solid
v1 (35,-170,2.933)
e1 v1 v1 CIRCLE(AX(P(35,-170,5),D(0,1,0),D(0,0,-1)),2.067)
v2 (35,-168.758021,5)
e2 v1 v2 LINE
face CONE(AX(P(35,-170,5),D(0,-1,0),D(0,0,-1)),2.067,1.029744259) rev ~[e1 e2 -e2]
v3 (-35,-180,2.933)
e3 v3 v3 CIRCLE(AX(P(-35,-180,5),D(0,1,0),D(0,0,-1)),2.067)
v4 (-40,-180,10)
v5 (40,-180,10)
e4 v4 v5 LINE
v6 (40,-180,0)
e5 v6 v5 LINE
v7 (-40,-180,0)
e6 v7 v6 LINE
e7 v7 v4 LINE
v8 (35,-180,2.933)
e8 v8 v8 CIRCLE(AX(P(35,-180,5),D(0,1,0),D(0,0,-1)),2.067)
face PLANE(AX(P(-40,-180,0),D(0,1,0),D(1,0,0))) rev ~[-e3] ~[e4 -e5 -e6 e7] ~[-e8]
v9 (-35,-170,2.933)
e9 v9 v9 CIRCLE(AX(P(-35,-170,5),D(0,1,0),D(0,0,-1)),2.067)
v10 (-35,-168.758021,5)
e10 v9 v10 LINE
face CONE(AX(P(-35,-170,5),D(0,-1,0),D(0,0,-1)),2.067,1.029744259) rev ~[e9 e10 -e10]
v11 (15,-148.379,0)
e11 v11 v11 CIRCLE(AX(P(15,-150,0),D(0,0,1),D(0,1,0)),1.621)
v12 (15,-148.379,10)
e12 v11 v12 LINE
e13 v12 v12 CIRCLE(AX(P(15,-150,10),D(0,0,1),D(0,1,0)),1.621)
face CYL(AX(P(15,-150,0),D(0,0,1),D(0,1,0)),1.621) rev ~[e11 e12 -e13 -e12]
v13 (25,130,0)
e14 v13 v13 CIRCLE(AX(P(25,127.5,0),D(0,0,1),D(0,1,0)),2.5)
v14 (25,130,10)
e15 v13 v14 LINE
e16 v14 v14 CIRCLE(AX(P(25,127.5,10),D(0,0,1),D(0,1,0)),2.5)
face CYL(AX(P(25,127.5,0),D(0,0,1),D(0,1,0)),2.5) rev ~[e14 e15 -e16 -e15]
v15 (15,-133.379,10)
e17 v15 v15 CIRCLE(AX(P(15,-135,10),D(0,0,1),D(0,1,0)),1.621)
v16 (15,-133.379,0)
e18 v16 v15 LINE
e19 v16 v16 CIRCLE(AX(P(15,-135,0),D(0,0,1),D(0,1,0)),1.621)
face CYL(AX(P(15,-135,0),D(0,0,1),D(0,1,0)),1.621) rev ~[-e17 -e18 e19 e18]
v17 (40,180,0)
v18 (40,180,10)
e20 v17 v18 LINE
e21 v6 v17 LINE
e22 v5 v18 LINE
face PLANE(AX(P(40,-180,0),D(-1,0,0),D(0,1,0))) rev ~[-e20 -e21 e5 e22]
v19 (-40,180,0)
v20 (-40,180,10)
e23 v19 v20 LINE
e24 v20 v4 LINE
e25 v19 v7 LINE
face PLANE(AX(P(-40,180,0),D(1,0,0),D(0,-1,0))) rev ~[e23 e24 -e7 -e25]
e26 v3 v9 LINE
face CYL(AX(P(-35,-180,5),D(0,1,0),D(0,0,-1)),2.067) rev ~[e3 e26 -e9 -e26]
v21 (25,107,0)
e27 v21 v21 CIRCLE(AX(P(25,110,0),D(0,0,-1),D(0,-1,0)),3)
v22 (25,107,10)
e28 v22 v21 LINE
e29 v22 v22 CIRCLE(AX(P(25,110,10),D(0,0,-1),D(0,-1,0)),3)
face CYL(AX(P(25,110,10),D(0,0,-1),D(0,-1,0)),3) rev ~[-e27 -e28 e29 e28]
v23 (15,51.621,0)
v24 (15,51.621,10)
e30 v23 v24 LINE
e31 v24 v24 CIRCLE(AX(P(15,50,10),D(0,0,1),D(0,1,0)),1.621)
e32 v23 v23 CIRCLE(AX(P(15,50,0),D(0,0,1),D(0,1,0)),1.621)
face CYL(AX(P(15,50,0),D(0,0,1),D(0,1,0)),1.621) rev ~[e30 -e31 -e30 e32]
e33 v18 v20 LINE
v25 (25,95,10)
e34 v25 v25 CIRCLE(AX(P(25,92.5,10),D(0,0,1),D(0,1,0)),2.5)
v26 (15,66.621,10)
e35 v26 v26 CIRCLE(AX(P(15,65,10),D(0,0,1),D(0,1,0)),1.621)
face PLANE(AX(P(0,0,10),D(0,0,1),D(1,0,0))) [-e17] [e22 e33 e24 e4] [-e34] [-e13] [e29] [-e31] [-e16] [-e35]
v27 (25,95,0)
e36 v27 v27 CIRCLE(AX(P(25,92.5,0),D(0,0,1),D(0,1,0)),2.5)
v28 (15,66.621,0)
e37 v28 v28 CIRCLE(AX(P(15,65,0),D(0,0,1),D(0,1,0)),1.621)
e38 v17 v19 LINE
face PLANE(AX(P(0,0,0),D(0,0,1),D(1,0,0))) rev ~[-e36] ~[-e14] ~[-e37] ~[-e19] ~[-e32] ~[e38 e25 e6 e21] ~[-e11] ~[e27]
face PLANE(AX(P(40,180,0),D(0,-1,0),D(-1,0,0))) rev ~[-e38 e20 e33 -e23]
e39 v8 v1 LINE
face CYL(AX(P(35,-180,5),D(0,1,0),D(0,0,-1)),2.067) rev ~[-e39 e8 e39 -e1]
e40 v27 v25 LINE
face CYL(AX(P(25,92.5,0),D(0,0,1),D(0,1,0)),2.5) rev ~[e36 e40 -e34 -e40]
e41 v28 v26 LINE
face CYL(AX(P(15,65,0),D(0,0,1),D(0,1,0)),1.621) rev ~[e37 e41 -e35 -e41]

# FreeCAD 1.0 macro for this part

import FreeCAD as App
import Part
import Sketcher

V = App.Vector
Q = App.Units.Quantity

doc = App.newDocument("Part")
body = doc.addObject("PartDesign::Body", "Body")

# Sketch on XY plane
sketch1 = doc.addObject("Sketcher::SketchObject", "Sketch")
body.addObject(sketch1)
sketch1.AttachmentSupport = (doc.XY_Plane, [""])
sketch1.MapMode = "FlatFace"
sketch1.addGeometry([
    Part.LineSegment(V(40, -180, 0), V(40, 180, 0)),
    Part.LineSegment(V(40, 180, 0), V(-40, 180, 0)),
    Part.LineSegment(V(-40, 180, 0), V(-40, -180, 0)),
    Part.LineSegment(V(-40, -180, 0), V(40, -180, 0)),
], False)
sketch1.addConstraint([
    Sketcher.Constraint("Coincident", 0, 2, 1, 1),
    Sketcher.Constraint("Coincident", 1, 2, 2, 1),
    Sketcher.Constraint("Coincident", 2, 2, 3, 1),
    Sketcher.Constraint("Coincident", 3, 2, 0, 1),
    Sketcher.Constraint("Vertical", 0),
    Sketcher.Constraint("Horizontal", 1),
    Sketcher.Constraint("Vertical", 2),
    Sketcher.Constraint("Horizontal", 3),
    Sketcher.Constraint("Symmetric", 0, 2, 2, 2, -1, 1),
    Sketcher.Constraint("DistanceX", 1, 2, 1, 1, Q("80 mm")),
    Sketcher.Constraint("DistanceY", 0, 1, 0, 2, Q("360 mm")),
])
pad1 = doc.addObject("PartDesign::Pad", "Pad")
body.addObject(pad1)
pad1.Profile = sketch1
pad1.Length = 10

# Sketch on XY plane
sketch2 = doc.addObject("Sketcher::SketchObject", "Sketch001")
body.addObject(sketch2)
sketch2.AttachmentSupport = (doc.XY_Plane, [""])
sketch2.MapMode = "FlatFace"
sketch2.AttachmentOffset = App.Placement(V(0, 0, 10), App.Rotation())
sketch2.addGeometry(Part.Circle(V(25, 110, 0), V(0, 0, 1), 3), False)
sketch2.addConstraint([
    Sketcher.Constraint("Diameter", 0, Q("6 mm")),
    Sketcher.Constraint("DistanceX", -1, 1, 0, 3, Q("25 mm")),
    Sketcher.Constraint("DistanceY", -1, 1, 0, 3, Q("110 mm")),
])
doc.recompute()
hole = doc.addObject("PartDesign::Hole", "Hole")
body.addObject(hole)
hole.Profile = sketch2
hole.ThreadType = "None"
hole.Diameter = 6
hole.DepthType = "ThroughAll"

# Sketch on XY plane
sketch3 = doc.addObject("Sketcher::SketchObject", "Sketch002")
body.addObject(sketch3)
sketch3.AttachmentSupport = (doc.XY_Plane, [""])
sketch3.MapMode = "FlatFace"
sketch3.addGeometry([
    Part.Circle(V(15, -150, 0), V(0, 0, 1), 1.621),
    Part.Circle(V(15, -135, 0), V(0, 0, 1), 1.621),
], False)
sketch3.addConstraint([
    Sketcher.Constraint("Equal", 0, 1),
    Sketcher.Constraint("Vertical", 0, 3, 1, 3),
    Sketcher.Constraint("Diameter", 0, Q("3.242 mm")),
    Sketcher.Constraint("DistanceX", -1, 1, 0, 3, Q("15 mm")),
    Sketcher.Constraint("DistanceY", 0, 3, -1, 1, Q("150 mm")),
    Sketcher.Constraint("DistanceY", 1, 3, -1, 1, Q("135 mm")),
])
doc.recompute()
hole2 = doc.addObject("PartDesign::Hole", "Hole001")
body.addObject(hole2)
hole2.Profile = sketch3
hole2.ThreadType = "None"
hole2.Diameter = 3.242
hole2.DepthType = "ThroughAll"
hole2.Reversed = True
doc.recompute()

linearpattern = doc.addObject("PartDesign::LinearPattern", "LinearPattern")
body.addObject(linearpattern)
linearpattern.Originals = [hole2]
linearpattern.Direction = (doc.Y_Axis, [""])
linearpattern.Mode = "offset"
linearpattern.Offset = 200
linearpattern.Occurrences = 2
body.Tip = linearpattern

# Sketch on XZ plane
sketch4 = doc.addObject("Sketcher::SketchObject", "Sketch003")
body.addObject(sketch4)
sketch4.AttachmentSupport = (doc.XZ_Plane, [""])
sketch4.MapMode = "FlatFace"
sketch4.AttachmentOffset = App.Placement(V(0, 0, 180), App.Rotation())
sketch4.addGeometry([
    Part.Circle(V(-35, 5, 0), V(0, 0, 1), 2.067),
    Part.Circle(V(35, 5, 0), V(0, 0, 1), 2.067),
], False)
sketch4.addConstraint([
    Sketcher.Constraint("Equal", 0, 1),
    Sketcher.Constraint("Symmetric", 0, 3, 1, 3, -2),
    Sketcher.Constraint("Diameter", 0, Q("4.134 mm")),
    Sketcher.Constraint("DistanceX", 0, 3, -1, 1, Q("35 mm")),
    Sketcher.Constraint("DistanceY", -1, 1, 0, 3, Q("5 mm")),
])
doc.recompute()
hole3 = doc.addObject("PartDesign::Hole", "Hole002")
body.addObject(hole3)
hole3.Profile = sketch4
hole3.ThreadType = "None"
hole3.Diameter = 4.134
hole3.DepthType = "Dimension"
hole3.Depth = 10
hole3.DrillPoint = "Angled"
hole3.DrillPointAngle = 118

# Sketch on XY plane
sketch5 = doc.addObject("Sketcher::SketchObject", "Sketch004")
body.addObject(sketch5)
sketch5.AttachmentSupport = (doc.XY_Plane, [""])
sketch5.MapMode = "FlatFace"
sketch5.addGeometry([
    Part.Circle(V(25, 127.5, 0), V(0, 0, 1), 2.5),
    Part.Circle(V(25, 92.5, 0), V(0, 0, 1), 2.5),
], False)
sketch5.addConstraint([
    Sketcher.Constraint("Equal", 0, 1),
    Sketcher.Constraint("Vertical", 0, 3, 1, 3),
    Sketcher.Constraint("Diameter", 0, Q("5 mm")),
    Sketcher.Constraint("DistanceX", -1, 1, 0, 3, Q("25 mm")),
    Sketcher.Constraint("DistanceY", 1, 3, 0, 3, Q("35 mm")),
    Sketcher.Constraint("DistanceY", -1, 1, 0, 3, Q("127.5 mm")),
])
doc.recompute()
hole4 = doc.addObject("PartDesign::Hole", "Hole003")
body.addObject(hole4)
hole4.Profile = sketch5
hole4.ThreadType = "None"
hole4.Diameter = 5
hole4.DepthType = "ThroughAll"
hole4.Reversed = True

doc.recompute()
